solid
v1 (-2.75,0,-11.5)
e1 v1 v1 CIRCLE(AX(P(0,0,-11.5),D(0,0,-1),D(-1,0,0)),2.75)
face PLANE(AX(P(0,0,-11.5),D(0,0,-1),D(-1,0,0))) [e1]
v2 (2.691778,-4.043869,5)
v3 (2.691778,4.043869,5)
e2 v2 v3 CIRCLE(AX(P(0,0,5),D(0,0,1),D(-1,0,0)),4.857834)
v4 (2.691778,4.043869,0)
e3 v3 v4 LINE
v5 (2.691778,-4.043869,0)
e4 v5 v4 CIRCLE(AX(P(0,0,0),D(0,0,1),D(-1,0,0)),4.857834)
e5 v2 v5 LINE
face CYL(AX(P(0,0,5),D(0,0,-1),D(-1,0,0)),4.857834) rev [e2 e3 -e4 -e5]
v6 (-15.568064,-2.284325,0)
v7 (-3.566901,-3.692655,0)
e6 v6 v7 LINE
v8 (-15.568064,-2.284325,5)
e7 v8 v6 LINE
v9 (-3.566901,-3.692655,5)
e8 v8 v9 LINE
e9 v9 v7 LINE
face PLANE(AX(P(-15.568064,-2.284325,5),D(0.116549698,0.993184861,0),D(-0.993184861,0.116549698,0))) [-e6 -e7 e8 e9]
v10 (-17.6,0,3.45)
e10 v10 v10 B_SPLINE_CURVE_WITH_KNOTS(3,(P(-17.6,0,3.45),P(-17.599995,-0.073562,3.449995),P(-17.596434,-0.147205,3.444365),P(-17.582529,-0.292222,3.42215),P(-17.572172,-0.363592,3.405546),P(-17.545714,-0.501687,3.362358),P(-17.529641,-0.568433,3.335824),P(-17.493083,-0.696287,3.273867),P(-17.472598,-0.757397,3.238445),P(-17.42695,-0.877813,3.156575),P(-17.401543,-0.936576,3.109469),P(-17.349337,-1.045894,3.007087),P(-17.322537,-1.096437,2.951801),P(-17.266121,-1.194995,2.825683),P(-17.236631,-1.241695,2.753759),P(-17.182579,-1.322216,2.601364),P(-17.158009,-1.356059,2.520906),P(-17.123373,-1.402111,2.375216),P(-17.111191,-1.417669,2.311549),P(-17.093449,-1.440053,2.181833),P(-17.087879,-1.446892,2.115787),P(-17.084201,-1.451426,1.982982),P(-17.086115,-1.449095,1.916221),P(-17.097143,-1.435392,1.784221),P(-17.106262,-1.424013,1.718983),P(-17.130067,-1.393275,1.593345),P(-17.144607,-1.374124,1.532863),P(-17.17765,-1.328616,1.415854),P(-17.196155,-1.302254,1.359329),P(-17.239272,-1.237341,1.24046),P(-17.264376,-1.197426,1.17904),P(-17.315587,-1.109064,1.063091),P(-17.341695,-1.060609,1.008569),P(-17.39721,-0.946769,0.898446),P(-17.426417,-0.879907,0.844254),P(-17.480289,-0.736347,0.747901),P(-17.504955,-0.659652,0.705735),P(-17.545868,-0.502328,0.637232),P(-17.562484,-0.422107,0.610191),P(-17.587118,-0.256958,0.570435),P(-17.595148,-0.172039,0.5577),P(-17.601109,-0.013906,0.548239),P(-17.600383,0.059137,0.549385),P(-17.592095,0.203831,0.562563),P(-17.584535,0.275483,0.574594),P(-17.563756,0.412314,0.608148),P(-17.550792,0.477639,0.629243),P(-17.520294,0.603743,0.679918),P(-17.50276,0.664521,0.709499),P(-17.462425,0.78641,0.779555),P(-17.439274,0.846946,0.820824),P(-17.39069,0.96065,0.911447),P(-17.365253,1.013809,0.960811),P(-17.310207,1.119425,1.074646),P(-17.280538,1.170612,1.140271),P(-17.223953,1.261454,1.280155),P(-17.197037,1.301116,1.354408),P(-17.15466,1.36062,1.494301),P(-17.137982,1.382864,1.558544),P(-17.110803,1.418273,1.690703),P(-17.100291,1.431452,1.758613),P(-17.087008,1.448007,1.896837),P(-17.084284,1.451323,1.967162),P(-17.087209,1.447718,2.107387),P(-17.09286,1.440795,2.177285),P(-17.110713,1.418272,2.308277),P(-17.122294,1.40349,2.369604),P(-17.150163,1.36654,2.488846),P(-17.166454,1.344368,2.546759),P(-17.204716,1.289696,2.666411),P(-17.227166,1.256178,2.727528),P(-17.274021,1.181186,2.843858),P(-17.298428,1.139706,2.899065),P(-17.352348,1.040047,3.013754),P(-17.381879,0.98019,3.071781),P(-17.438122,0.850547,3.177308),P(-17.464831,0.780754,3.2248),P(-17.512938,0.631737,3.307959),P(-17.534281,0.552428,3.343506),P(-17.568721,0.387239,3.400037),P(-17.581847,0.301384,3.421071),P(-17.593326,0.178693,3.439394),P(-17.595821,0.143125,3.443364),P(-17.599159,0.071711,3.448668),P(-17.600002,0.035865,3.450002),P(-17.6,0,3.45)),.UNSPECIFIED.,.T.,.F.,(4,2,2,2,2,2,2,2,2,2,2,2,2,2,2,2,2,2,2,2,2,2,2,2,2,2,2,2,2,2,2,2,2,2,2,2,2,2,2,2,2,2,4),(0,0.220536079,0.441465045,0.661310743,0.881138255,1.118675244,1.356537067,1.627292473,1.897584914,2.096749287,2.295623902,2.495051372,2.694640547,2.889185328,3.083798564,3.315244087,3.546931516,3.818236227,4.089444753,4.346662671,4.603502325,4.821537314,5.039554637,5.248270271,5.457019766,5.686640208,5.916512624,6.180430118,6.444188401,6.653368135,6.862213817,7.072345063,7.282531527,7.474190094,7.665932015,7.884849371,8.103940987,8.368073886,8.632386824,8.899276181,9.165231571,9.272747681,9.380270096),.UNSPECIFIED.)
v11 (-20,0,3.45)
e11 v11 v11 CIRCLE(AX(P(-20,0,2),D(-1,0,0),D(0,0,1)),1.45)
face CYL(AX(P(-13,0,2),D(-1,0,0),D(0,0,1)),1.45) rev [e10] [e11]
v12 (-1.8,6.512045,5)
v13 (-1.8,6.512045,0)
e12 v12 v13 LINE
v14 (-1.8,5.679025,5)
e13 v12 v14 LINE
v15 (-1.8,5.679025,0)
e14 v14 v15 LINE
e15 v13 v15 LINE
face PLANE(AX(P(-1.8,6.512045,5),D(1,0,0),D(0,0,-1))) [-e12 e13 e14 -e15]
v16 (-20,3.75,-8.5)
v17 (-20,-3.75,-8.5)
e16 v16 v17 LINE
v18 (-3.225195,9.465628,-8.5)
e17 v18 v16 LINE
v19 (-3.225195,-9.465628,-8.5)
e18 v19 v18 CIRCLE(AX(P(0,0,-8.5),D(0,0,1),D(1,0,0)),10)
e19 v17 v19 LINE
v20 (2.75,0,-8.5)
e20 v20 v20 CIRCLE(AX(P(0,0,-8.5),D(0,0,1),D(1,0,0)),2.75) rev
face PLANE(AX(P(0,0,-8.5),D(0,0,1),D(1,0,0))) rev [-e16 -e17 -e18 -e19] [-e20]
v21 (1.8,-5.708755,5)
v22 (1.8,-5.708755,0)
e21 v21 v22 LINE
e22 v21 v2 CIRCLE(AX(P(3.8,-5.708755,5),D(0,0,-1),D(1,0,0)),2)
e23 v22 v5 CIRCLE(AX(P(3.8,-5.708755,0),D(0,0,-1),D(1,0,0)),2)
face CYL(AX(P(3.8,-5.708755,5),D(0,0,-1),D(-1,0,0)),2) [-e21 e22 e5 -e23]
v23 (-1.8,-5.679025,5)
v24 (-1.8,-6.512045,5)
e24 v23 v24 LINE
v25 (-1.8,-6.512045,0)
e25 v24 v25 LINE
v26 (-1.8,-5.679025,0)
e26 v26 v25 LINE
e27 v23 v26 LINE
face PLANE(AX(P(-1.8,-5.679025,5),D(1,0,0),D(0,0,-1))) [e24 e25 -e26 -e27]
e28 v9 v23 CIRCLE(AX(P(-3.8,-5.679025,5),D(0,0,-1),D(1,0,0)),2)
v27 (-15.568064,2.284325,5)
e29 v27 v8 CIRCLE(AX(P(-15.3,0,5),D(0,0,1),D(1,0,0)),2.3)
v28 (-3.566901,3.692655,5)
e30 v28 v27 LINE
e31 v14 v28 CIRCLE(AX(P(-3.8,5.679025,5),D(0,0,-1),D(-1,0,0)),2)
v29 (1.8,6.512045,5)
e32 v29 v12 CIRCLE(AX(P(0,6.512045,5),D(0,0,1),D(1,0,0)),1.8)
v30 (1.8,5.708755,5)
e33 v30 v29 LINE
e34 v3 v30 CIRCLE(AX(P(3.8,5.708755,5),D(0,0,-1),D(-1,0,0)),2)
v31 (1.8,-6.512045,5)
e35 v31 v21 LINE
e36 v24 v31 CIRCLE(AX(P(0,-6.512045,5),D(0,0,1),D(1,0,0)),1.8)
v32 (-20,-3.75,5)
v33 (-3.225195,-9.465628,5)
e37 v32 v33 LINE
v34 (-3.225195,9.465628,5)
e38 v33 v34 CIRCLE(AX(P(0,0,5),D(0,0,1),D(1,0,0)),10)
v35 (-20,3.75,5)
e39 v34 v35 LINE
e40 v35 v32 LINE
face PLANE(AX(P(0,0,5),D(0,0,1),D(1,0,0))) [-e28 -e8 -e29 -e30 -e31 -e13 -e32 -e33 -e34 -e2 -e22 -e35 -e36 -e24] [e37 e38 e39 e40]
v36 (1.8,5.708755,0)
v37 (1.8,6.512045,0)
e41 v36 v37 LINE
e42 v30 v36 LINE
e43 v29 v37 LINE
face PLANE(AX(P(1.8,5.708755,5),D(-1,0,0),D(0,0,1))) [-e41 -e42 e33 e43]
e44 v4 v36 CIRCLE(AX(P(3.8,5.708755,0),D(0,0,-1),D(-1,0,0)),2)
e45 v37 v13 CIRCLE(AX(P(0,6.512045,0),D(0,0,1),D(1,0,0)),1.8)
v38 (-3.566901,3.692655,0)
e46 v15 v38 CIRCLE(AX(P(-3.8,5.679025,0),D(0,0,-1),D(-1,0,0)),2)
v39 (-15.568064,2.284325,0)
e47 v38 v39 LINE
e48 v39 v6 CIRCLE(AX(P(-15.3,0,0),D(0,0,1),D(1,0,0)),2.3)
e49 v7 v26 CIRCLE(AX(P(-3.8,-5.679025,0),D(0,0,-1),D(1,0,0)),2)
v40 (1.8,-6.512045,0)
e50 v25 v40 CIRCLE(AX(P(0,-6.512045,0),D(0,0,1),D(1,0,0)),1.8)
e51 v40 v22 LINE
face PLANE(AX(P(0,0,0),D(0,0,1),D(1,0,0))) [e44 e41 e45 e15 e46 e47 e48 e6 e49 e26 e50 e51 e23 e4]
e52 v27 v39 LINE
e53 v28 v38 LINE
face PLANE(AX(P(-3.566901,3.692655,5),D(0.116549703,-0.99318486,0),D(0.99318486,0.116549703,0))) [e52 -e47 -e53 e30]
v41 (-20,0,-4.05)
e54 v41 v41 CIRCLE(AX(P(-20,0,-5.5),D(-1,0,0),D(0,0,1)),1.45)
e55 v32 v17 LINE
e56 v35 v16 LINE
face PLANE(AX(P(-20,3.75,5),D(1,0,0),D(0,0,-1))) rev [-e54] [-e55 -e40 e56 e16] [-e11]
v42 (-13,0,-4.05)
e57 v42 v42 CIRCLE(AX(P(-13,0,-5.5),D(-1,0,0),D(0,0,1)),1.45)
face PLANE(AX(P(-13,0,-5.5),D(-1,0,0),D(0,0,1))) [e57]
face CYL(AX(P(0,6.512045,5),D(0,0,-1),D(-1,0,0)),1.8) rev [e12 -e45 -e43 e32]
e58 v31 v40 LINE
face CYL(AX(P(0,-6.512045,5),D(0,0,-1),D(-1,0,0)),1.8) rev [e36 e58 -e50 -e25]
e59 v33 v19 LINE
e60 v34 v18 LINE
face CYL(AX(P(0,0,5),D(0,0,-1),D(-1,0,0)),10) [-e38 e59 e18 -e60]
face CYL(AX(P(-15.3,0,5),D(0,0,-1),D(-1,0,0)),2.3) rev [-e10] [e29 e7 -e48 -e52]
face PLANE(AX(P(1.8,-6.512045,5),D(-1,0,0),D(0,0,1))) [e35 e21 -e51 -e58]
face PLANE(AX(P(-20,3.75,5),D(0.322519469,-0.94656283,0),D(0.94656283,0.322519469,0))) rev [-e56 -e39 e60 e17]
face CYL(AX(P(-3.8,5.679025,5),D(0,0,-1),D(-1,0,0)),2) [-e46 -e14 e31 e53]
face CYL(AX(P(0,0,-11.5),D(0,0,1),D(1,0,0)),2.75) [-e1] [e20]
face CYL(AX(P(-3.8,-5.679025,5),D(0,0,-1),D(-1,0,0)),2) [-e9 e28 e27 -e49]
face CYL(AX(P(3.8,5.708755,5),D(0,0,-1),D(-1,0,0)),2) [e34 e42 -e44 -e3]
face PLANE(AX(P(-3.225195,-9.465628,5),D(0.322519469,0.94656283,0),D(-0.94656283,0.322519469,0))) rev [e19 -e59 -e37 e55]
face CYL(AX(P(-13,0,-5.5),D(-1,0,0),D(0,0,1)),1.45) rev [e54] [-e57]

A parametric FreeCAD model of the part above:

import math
import FreeCAD as App
import Part
import Sketcher

V = App.Vector

doc = App.newDocument("Part")
body = doc.addObject("PartDesign::Body", "Body")

# Sketch on XY plane
sketch1 = body.newObject("Sketcher::SketchObject", "Sketch")
sketch1.AttachmentSupport = (doc.getObject("XY_Plane"), [""])
sketch1.MapMode = "FlatFace"
sketch1.addGeometry(Part.LineSegment(V(-20, 3.75, 0), V(-20, -3.75, 0)), False)
sketch1.addGeometry(Part.LineSegment(V(-20, -3.75, 0), V(-3.225195, -9.465628, 0)), False)
sketch1.addGeometry(Part.ArcOfCircle(Part.Circle(V(0, 0, 0), V(0, 0, 1), 10), math.radians(-108.81536), math.radians(108.81536)), False)
sketch1.addGeometry(Part.LineSegment(V(-3.225195, 9.465628, 0), V(-20, 3.75, 0)), False)
sketch1.addGeometry(Part.LineSegment(V(1.8, 6.512045, 0), V(1.8, 5.708755, 0)), False)
sketch1.addGeometry(Part.ArcOfCircle(Part.Circle(V(3.8, 5.708755, 0), V(0, 0, 1), 2), math.radians(180), math.radians(236.350508)), False)
sketch1.addGeometry(Part.ArcOfCircle(Part.Circle(V(0, 0, 0), V(0, 0, 1), 4.857834), math.radians(-56.350508), math.radians(56.350508)), False)
sketch1.addGeometry(Part.ArcOfCircle(Part.Circle(V(3.8, -5.708755, 0), V(0, 0, 1), 2), math.radians(123.649492), math.radians(180)), False)
sketch1.addGeometry(Part.LineSegment(V(1.8, -5.708755, 0), V(1.8, -6.512045, 0)), False)
sketch1.addGeometry(Part.ArcOfCircle(Part.Circle(V(0, -6.512045, 0), V(0, 0, 1), 1.8), math.radians(180), math.radians(360)), False)
sketch1.addGeometry(Part.LineSegment(V(-1.8, -6.512045, 0), V(-1.8, -5.679025, 0)), False)
sketch1.addGeometry(Part.ArcOfCircle(Part.Circle(V(-3.8, -5.679025, 0), V(0, 0, 1), 2), math.radians(0), math.radians(83.306983)), False)
sketch1.addGeometry(Part.LineSegment(V(-3.566901, -3.692655, 0), V(-15.568064, -2.284325, 0)), False)
sketch1.addGeometry(Part.ArcOfCircle(Part.Circle(V(-15.3, 0, 0), V(0, 0, 1), 2.3), math.radians(96.693017), math.radians(263.306983)), False)
sketch1.addGeometry(Part.LineSegment(V(-15.568064, 2.284325, 0), V(-3.566901, 3.692655, 0)), False)
sketch1.addGeometry(Part.ArcOfCircle(Part.Circle(V(-3.8, 5.679025, 0), V(0, 0, 1), 2), math.radians(-83.306982), math.radians(0)), False)
sketch1.addGeometry(Part.LineSegment(V(-1.8, 5.679025, 0), V(-1.8, 6.512045, 0)), False)
sketch1.addGeometry(Part.ArcOfCircle(Part.Circle(V(0, 6.512045, 0), V(0, 0, 1), 1.8), math.radians(0), math.radians(179.999998)), False)
sketch1.addConstraint(Sketcher.Constraint("Coincident", 0, 2, 1, 1))
sketch1.addConstraint(Sketcher.Constraint("Tangent", 1, 2, 2, 1))
sketch1.addConstraint(Sketcher.Constraint("Tangent", 2, 2, 3, 1))
sketch1.addConstraint(Sketcher.Constraint("Coincident", 3, 2, 0, 1))
sketch1.addConstraint(Sketcher.Constraint("Tangent", 4, 2, 5, 1))
sketch1.addConstraint(Sketcher.Constraint("Tangent", 5, 2, 6, 2))
sketch1.addConstraint(Sketcher.Constraint("Tangent", 6, 1, 7, 1))
sketch1.addConstraint(Sketcher.Constraint("Tangent", 7, 2, 8, 1))
sketch1.addConstraint(Sketcher.Constraint("Tangent", 8, 2, 9, 2))
sketch1.addConstraint(Sketcher.Constraint("Tangent", 9, 1, 10, 1))
sketch1.addConstraint(Sketcher.Constraint("Tangent", 10, 2, 11, 1))
sketch1.addConstraint(Sketcher.Constraint("Tangent", 11, 2, 12, 1))
sketch1.addConstraint(Sketcher.Constraint("Tangent", 12, 2, 13, 2))
sketch1.addConstraint(Sketcher.Constraint("Tangent", 13, 1, 14, 1))
sketch1.addConstraint(Sketcher.Constraint("Tangent", 14, 2, 15, 1))
sketch1.addConstraint(Sketcher.Constraint("Tangent", 15, 2, 16, 1))
sketch1.addConstraint(Sketcher.Constraint("Tangent", 16, 2, 17, 2))
sketch1.addConstraint(Sketcher.Constraint("Tangent", 17, 1, 4, 1))
sketch1.addConstraint(Sketcher.Constraint("Vertical", 0))
sketch1.addConstraint(Sketcher.Constraint("Vertical", 4))
sketch1.addConstraint(Sketcher.Constraint("Vertical", 8))
sketch1.addConstraint(Sketcher.Constraint("Vertical", 10))
sketch1.addConstraint(Sketcher.Constraint("Vertical", 16))
sketch1.addConstraint(Sketcher.Constraint("Coincident", 2, 3, -1, 1))
sketch1.addConstraint(Sketcher.Constraint("Coincident", 6, 3, -1, 1))
sketch1.addConstraint(Sketcher.Constraint("Equal", 5, 7))
sketch1.addConstraint(Sketcher.Constraint("Equal", 7, 11))
sketch1.addConstraint(Sketcher.Constraint("Equal", 11, 15))
sketch1.addConstraint(Sketcher.Constraint("Equal", 9, 17))
sketch1.addConstraint(Sketcher.Constraint("Symmetric", 9, 3, 17, 3, -1, 1))
sketch1.addConstraint(Sketcher.Constraint("Symmetric", 11, 3, 15, 3, -1))
sketch1.addConstraint(Sketcher.Constraint("PointOnObject", 13, 3, -1))
sketch1.addConstraint(Sketcher.Constraint("Vertical", 1, 2, 2, 2))
sketch1.addConstraint(Sketcher.Constraint("Radius", 2, 10.0))
sketch1.addConstraint(Sketcher.Constraint("Radius", 5, 2.0))
sketch1.addConstraint(Sketcher.Constraint("Radius", 9, 1.8))
sketch1.addConstraint(Sketcher.Constraint("Radius", 13, 2.3))
sketch1.addConstraint(Sketcher.Constraint("DistanceY", 0, 2, 0, 1, 7.5))
sketch1.addConstraint(Sketcher.Constraint("DistanceX", 0, 2, -1, 1, 20.0))
sketch1.addConstraint(Sketcher.Constraint("DistanceX", 13, 3, -1, 1, 15.3))
sketch1.addConstraint(Sketcher.Constraint("Radius", 6, 4.857834))
sketch1.addConstraint(Sketcher.Constraint("DistanceY", 4, 2, 4, 1, 0.80329))
sketch1.addConstraint(Sketcher.Constraint("DistanceY", 10, 1, 10, 2, 0.83302))
pad1 = body.newObject("PartDesign::Pad", "Pad")
pad1.Profile = sketch1
pad1.Length = 5

# Sketch on XY plane
sketch2 = body.newObject("Sketcher::SketchObject", "Sketch001")
sketch2.AttachmentSupport = (doc.getObject("XY_Plane"), [""])
sketch2.MapMode = "FlatFace"
sketch2.AttachmentOffset = App.Placement(V(0, 0, -8.5), App.Rotation())
sketch2.addGeometry(Part.LineSegment(V(-3.225195, 9.465628, 0), V(-20, 3.75, 0)), False)
sketch2.addGeometry(Part.LineSegment(V(-20, 3.75, 0), V(-20, -3.75, 0)), False)
sketch2.addGeometry(Part.LineSegment(V(-20, -3.75, 0), V(-3.225195, -9.465628, 0)), False)
sketch2.addGeometry(Part.ArcOfCircle(Part.Circle(V(0, 0, 0), V(0, 0, 1), 10), math.radians(-108.81536), math.radians(108.81536)), False)
sketch2.addConstraint(Sketcher.Constraint("Coincident", 0, 2, 1, 1))
sketch2.addConstraint(Sketcher.Constraint("Coincident", 1, 2, 2, 1))
sketch2.addConstraint(Sketcher.Constraint("Tangent", 2, 2, 3, 1))
sketch2.addConstraint(Sketcher.Constraint("Tangent", 3, 2, 0, 1))
sketch2.addConstraint(Sketcher.Constraint("Vertical", 1))
sketch2.addConstraint(Sketcher.Constraint("Coincident", 3, 3, -1, 1))
sketch2.addConstraint(Sketcher.Constraint("Vertical", 2, 2, 3, 2))
sketch2.addConstraint(Sketcher.Constraint("Radius", 3, 10.0))
sketch2.addConstraint(Sketcher.Constraint("DistanceY", 1, 2, 1, 1, 7.5))
sketch2.addConstraint(Sketcher.Constraint("DistanceX", 0, 2, -1, 1, 20.0))
pad2 = body.newObject("PartDesign::Pad", "Pad001")
pad2.Profile = sketch2
pad2.Length = 8.5

# Sketch on XY plane
sketch3 = body.newObject("Sketcher::SketchObject", "Sketch002")
sketch3.AttachmentSupport = (doc.getObject("XY_Plane"), [""])
sketch3.MapMode = "FlatFace"
sketch3.AttachmentOffset = App.Placement(V(0, 0, -8.5), App.Rotation())
sketch3.addGeometry(Part.Circle(V(0, 0, 0), V(0, 0, 1), 2.75), False)
sketch3.addConstraint(Sketcher.Constraint("Coincident", 0, 3, -1, 1))
sketch3.addConstraint(Sketcher.Constraint("Diameter", 0, 5.5))
pad3 = body.newObject("PartDesign::Pad", "Pad002")
pad3.Profile = sketch3
pad3.Length = 3
pad3.Reversed = True

# Sketch on YZ plane
sketch4 = body.newObject("Sketcher::SketchObject", "Sketch003")
sketch4.AttachmentSupport = (doc.getObject("YZ_Plane"), [""])
sketch4.MapMode = "FlatFace"
sketch4.AttachmentOffset = App.Placement(V(0, 0, -20), App.Rotation())
sketch4.addGeometry(Part.Circle(V(0, -5.5, 0), V(0, 0, 1), 1.45), False)
sketch4.addGeometry(Part.Circle(V(0, 2, 0), V(0, 0, 1), 1.45), False)
sketch4.addConstraint(Sketcher.Constraint("Equal", 0, 1))
sketch4.addConstraint(Sketcher.Constraint("PointOnObject", 0, 3, -2))
sketch4.addConstraint(Sketcher.Constraint("PointOnObject", 1, 3, -2))
sketch4.addConstraint(Sketcher.Constraint("Diameter", 0, 2.9))
sketch4.addConstraint(Sketcher.Constraint("DistanceY", -1, 1, 1, 3, 2.0))
sketch4.addConstraint(Sketcher.Constraint("DistanceY", 0, 3, -1, 1, 5.5))
pocket1 = body.newObject("PartDesign::Pocket", "Pocket")
pocket1.Profile = sketch4
pocket1.Length = 7
pocket1.Reversed = True

doc.recompute()
